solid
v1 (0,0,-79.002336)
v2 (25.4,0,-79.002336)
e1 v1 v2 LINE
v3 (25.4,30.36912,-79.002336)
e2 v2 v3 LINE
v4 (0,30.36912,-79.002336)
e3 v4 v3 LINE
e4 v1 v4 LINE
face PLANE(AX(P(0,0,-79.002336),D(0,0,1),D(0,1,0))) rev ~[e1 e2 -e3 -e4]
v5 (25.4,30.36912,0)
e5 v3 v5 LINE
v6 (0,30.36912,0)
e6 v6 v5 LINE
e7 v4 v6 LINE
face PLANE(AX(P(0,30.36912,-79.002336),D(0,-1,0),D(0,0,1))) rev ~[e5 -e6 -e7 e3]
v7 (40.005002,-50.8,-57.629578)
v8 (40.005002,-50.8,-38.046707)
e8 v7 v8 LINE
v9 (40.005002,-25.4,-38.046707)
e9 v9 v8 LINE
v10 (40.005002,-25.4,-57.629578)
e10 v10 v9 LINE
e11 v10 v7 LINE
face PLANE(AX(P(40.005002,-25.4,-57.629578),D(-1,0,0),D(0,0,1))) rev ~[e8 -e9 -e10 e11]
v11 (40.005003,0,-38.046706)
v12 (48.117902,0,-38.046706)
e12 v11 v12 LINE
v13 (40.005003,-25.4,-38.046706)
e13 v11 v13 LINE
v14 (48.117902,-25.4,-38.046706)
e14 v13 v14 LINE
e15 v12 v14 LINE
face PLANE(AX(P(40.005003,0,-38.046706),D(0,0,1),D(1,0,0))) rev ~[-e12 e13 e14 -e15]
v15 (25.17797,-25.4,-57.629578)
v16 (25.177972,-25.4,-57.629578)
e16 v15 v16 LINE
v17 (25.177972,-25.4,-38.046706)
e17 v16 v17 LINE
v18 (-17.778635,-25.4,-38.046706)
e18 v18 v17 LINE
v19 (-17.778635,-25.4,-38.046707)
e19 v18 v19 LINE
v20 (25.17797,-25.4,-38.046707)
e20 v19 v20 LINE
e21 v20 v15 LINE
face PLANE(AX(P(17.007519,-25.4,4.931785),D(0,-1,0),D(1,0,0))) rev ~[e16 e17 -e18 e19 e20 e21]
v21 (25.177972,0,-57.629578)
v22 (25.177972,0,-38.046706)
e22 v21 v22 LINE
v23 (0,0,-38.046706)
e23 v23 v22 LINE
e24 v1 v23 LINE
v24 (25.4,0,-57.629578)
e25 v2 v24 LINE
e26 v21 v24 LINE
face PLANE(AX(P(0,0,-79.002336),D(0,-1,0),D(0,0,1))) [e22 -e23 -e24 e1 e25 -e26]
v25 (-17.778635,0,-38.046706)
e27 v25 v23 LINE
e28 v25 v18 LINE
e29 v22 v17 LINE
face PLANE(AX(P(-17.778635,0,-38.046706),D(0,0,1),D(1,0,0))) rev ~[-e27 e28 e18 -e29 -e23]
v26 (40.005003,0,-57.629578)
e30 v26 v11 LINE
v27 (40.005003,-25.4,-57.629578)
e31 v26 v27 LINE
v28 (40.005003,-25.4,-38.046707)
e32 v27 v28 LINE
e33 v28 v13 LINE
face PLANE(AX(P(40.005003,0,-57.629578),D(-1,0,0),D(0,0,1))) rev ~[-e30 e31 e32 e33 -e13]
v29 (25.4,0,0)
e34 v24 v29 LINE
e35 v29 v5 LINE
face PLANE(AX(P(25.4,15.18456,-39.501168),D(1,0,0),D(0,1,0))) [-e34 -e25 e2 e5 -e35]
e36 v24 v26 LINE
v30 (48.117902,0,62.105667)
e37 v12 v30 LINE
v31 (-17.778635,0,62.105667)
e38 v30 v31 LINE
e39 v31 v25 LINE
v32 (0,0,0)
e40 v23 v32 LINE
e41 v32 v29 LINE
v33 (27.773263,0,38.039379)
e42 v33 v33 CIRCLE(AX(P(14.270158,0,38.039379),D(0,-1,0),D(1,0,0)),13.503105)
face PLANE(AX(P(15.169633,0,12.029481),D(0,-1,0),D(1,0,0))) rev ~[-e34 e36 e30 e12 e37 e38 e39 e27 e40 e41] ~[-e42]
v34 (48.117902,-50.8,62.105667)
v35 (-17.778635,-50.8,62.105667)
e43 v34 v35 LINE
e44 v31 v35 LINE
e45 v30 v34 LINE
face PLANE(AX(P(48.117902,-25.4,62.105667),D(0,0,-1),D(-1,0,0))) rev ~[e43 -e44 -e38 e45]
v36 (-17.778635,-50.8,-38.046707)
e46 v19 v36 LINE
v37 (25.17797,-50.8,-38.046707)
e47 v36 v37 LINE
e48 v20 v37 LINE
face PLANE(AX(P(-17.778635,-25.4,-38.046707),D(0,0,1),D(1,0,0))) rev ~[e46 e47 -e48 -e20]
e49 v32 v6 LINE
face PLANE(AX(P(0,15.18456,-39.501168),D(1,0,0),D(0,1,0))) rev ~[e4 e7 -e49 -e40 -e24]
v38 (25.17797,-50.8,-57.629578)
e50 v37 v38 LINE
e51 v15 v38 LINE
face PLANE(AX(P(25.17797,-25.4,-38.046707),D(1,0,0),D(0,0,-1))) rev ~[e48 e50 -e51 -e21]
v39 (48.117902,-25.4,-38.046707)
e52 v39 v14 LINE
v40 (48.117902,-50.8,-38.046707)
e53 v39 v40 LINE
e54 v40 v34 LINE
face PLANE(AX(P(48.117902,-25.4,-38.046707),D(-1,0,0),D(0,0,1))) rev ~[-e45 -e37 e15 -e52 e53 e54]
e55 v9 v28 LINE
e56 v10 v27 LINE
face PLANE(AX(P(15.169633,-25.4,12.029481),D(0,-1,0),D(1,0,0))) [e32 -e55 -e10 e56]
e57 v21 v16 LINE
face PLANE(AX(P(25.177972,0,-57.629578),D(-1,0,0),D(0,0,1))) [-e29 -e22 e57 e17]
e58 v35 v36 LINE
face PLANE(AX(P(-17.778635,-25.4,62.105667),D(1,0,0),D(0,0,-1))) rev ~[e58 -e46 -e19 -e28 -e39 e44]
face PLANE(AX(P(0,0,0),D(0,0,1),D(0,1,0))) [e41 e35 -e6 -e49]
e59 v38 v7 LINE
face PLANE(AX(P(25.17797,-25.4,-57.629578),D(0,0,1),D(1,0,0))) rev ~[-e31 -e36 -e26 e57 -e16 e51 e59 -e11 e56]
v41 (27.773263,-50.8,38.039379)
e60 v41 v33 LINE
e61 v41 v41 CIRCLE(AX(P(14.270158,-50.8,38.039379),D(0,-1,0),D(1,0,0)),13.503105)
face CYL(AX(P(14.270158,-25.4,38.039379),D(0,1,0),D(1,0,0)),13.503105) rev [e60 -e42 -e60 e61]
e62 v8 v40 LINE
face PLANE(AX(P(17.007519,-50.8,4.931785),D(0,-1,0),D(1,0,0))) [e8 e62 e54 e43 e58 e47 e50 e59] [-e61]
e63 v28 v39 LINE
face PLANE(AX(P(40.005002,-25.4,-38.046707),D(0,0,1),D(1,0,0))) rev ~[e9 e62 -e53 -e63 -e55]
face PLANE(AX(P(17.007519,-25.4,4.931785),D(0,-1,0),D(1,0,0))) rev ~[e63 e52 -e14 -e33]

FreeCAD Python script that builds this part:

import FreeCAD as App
import Part
import Sketcher
from FreeCAD import Vector
Q = App.Units.Quantity

doc = App.newDocument("Part")
body = doc.addObject("PartDesign::Body", "Body")

# Sketch on XZ plane
sketch1 = body.newObject("Sketcher::SketchObject", "Sketch")
sketch1.AttachmentSupport = (doc.getObject("XZ_Plane"), [""])
sketch1.MapMode = "FlatFace"
sketch1.addGeometry([
    Part.LineSegment(Vector(48, -38, 0), Vector(48, 62, 0)),  # 0
    Part.LineSegment(Vector(48, 62, 0), Vector(-18, 62, 0)),  # 1
    Part.LineSegment(Vector(-18, 62, 0), Vector(-18, -38, 0)),  # 2
    Part.LineSegment(Vector(-18, -38, 0), Vector(25, -38, 0)),  # 3
    Part.LineSegment(Vector(25, -38, 0), Vector(25, -58, 0)),  # 4
    Part.LineSegment(Vector(25, -58, 0), Vector(40, -58, 0)),  # 5
    Part.LineSegment(Vector(40, -58, 0), Vector(40, -38, 0)),  # 6
    Part.LineSegment(Vector(40, -38, 0), Vector(48, -38, 0)),  # 7
    Part.Circle(Vector(14, 38, 0), Vector(0, 0, 1), 14),  # 8
], False)
sketch1.addConstraint([
    Sketcher.Constraint("Coincident", 0, 2, 1, 1),
    Sketcher.Constraint("Coincident", 1, 2, 2, 1),
    Sketcher.Constraint("Coincident", 2, 2, 3, 1),
    Sketcher.Constraint("Coincident", 3, 2, 4, 1),
    Sketcher.Constraint("Coincident", 4, 2, 5, 1),
    Sketcher.Constraint("Coincident", 5, 2, 6, 1),
    Sketcher.Constraint("Coincident", 6, 2, 7, 1),
    Sketcher.Constraint("Coincident", 7, 2, 0, 1),
    Sketcher.Constraint("Vertical", 0),
    Sketcher.Constraint("Horizontal", 1),
    Sketcher.Constraint("Vertical", 2),
    Sketcher.Constraint("Horizontal", 3),
    Sketcher.Constraint("Vertical", 4),
    Sketcher.Constraint("Horizontal", 5),
    Sketcher.Constraint("Vertical", 6),
    Sketcher.Constraint("Horizontal", 7),
    Sketcher.Constraint("Horizontal", 3, 2, 6, 2),
    Sketcher.Constraint("Diameter", 8, 27.00621),
    Sketcher.Constraint("DistanceX", -1, 1, 5, 2, Q("1.5750001 in")),
    Sketcher.Constraint("DistanceX", 7, 1, 7, 2, 8.112899),
    Sketcher.Constraint("DistanceX", 5, 1, 5, 2, 14.827031),
    Sketcher.Constraint("DistanceX", 1, 2, 1, 1, 65.896537),
    Sketcher.Constraint("DistanceY", 0, 1, 0, 2, 100.152373),
    Sketcher.Constraint("DistanceY", 4, 2, 4, 1, 19.582872),
    Sketcher.Constraint("DistanceY", -1, 1, 8, 3, 38.039379),
    Sketcher.Constraint("DistanceY", 4, 2, -1, 1, 57.629578),
    Sketcher.Constraint("DistanceX", -1, 1, 8, 3, 14.270158),
])
pad1 = body.newObject("PartDesign::Pad", "Pad")
pad1.Profile = sketch1
pad1.Length = Q("1 in")

# Sketch on XZ plane
sketch2 = body.newObject("Sketcher::SketchObject", "Sketch001")
sketch2.AttachmentSupport = (doc.getObject("XZ_Plane"), [""])
sketch2.MapMode = "FlatFace"
sketch2.AttachmentOffset = App.Placement(Vector(0, 0, 1 * 25.4), App.Rotation())
sketch2.addGeometry([
    Part.LineSegment(Vector(48, -38, 0), Vector(48, 62, 0)),  # 0
    Part.LineSegment(Vector(48, 62, 0), Vector(-18, 62, 0)),  # 1
    Part.LineSegment(Vector(-18, 62, 0), Vector(-18, -38, 0)),  # 2
    Part.LineSegment(Vector(-18, -38, 0), Vector(25, -38, 0)),  # 3
    Part.LineSegment(Vector(25, -38, 0), Vector(25, -58, 0)),  # 4
    Part.LineSegment(Vector(25, -58, 0), Vector(40, -58, 0)),  # 5
    Part.LineSegment(Vector(40, -58, 0), Vector(40, -38, 0)),  # 6
    Part.LineSegment(Vector(40, -38, 0), Vector(48, -38, 0)),  # 7
    Part.Circle(Vector(14, 38, 0), Vector(0, 0, 1), 14),  # 8
], False)
sketch2.addConstraint([
    Sketcher.Constraint("Coincident", 0, 2, 1, 1),
    Sketcher.Constraint("Coincident", 1, 2, 2, 1),
    Sketcher.Constraint("Coincident", 2, 2, 3, 1),
    Sketcher.Constraint("Coincident", 3, 2, 4, 1),
    Sketcher.Constraint("Coincident", 4, 2, 5, 1),
    Sketcher.Constraint("Coincident", 5, 2, 6, 1),
    Sketcher.Constraint("Coincident", 6, 2, 7, 1),
    Sketcher.Constraint("Coincident", 7, 2, 0, 1),
    Sketcher.Constraint("Vertical", 0),
    Sketcher.Constraint("Horizontal", 1),
    Sketcher.Constraint("Vertical", 2),
    Sketcher.Constraint("Horizontal", 3),
    Sketcher.Constraint("Vertical", 4),
    Sketcher.Constraint("Horizontal", 5),
    Sketcher.Constraint("Vertical", 6),
    Sketcher.Constraint("Horizontal", 7),
    Sketcher.Constraint("Horizontal", 3, 2, 6, 2),
    Sketcher.Constraint("Diameter", 8, 27.00621),
    Sketcher.Constraint("DistanceX", -1, 1, 5, 2, Q("1.5750001 in")),
    Sketcher.Constraint("DistanceX", 7, 1, 7, 2, 8.1129),
    Sketcher.Constraint("DistanceX", 5, 1, 5, 2, 14.827032),
    Sketcher.Constraint("DistanceY", 4, 2, 4, 1, 19.582871),
    Sketcher.Constraint("DistanceX", 1, 2, 1, 1, 65.896537),
    Sketcher.Constraint("DistanceY", 0, 1, 0, 2, 100.152374),
    Sketcher.Constraint("DistanceY", -1, 1, 8, 3, 38.039379),
    Sketcher.Constraint("DistanceY", 4, 2, -1, 1, 57.629578),
    Sketcher.Constraint("DistanceX", 8, 3, 3, 2, 10.907812),
])
pad2 = body.newObject("PartDesign::Pad", "Pad001")
pad2.Profile = sketch2
pad2.Length = Q("1 in")

# Sketch on YZ plane
sketch3 = body.newObject("Sketcher::SketchObject", "Sketch002")
sketch3.AttachmentSupport = (doc.getObject("YZ_Plane"), [""])
sketch3.MapMode = "FlatFace"
sketch3.addGeometry([
    Part.LineSegment(Vector(0, 0, 0), Vector(0, -79, 0)),
    Part.LineSegment(Vector(0, -79, 0), Vector(30, -79, 0)),
    Part.LineSegment(Vector(30, -79, 0), Vector(30, 0, 0)),
    Part.LineSegment(Vector(30, 0, 0), Vector(0, 0, 0)),
], False)
sketch3.addConstraint([
    Sketcher.Constraint("Coincident", 0, 2, 1, 1),
    Sketcher.Constraint("Coincident", 1, 2, 2, 1),
    Sketcher.Constraint("Coincident", 2, 2, 3, 1),
    Sketcher.Constraint("Coincident", 3, 2, 0, 1),
    Sketcher.Constraint("Vertical", 0),
    Sketcher.Constraint("Horizontal", 1),
    Sketcher.Constraint("Vertical", 2),
    Sketcher.Constraint("Horizontal", 3),
    Sketcher.Constraint("Coincident", 3, 2, -1, 1),
    Sketcher.Constraint("DistanceX", 1, 1, 1, 2, 30.36912),
    Sketcher.Constraint("DistanceY", 0, 2, 0, 1, 79.002336),
])
pad3 = body.newObject("PartDesign::Pad", "Pad002")
pad3.Profile = sketch3
pad3.Length = Q("1 in")

doc.recompute()
